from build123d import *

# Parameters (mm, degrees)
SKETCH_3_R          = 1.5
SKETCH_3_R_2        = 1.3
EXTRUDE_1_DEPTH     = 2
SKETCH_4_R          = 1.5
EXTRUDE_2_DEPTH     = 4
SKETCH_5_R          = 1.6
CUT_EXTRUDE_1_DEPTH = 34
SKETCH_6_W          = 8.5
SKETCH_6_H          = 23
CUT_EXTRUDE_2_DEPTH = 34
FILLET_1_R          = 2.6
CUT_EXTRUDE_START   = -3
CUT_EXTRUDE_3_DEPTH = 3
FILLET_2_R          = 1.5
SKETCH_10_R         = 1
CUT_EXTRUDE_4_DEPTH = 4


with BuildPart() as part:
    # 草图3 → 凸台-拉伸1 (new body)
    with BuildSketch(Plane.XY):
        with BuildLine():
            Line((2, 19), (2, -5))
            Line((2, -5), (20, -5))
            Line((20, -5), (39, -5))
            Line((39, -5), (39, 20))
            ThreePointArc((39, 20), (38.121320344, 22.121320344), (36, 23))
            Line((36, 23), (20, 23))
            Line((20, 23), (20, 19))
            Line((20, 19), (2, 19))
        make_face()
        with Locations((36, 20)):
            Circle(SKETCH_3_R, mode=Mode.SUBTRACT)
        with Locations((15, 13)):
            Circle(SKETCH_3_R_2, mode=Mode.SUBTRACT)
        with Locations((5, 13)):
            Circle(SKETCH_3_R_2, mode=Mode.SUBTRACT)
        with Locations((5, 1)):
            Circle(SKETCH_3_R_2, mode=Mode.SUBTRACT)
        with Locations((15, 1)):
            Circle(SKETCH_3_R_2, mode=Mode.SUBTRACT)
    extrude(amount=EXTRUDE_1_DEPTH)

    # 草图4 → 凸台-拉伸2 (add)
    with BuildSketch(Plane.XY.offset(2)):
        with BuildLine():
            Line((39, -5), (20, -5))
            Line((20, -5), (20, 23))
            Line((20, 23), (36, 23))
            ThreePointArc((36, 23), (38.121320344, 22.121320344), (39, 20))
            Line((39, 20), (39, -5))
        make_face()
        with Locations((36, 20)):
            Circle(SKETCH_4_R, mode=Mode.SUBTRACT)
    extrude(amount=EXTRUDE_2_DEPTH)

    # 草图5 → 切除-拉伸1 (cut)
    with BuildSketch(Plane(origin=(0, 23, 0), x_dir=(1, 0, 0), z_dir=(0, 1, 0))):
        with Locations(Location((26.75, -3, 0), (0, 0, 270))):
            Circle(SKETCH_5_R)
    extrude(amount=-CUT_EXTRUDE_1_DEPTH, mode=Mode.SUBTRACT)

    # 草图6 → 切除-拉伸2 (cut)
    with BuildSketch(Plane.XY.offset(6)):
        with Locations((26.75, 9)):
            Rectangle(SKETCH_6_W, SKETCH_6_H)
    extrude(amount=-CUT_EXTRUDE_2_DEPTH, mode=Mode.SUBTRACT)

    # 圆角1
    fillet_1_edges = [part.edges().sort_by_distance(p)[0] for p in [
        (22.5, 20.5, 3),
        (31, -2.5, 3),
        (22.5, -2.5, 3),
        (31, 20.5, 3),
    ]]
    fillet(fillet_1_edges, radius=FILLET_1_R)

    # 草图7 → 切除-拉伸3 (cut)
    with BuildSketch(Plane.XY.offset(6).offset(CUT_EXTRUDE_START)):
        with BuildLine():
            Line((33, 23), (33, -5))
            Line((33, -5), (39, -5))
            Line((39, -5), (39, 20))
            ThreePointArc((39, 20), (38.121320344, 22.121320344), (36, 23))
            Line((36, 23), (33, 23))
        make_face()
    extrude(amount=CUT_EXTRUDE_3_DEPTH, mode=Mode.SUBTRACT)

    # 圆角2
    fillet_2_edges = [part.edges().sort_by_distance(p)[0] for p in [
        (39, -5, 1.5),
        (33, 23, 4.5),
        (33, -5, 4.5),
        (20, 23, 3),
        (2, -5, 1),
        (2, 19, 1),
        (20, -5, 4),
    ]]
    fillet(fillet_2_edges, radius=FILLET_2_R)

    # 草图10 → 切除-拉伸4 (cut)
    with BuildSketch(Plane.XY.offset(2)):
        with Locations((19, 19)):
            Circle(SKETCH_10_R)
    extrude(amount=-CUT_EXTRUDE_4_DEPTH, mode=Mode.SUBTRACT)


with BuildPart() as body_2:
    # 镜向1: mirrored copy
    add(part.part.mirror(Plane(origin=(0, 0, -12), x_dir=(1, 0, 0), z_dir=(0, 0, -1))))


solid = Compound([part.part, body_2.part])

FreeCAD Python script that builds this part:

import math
import FreeCAD as App
import Part
import Sketcher

V = App.Vector


def edges_at(feature, points):
    """Names of the edges that pass closest to the given points."""
    edges = feature.Shape.Edges
    near = lambda p: min(range(len(edges)), key=lambda i: edges[i].distToShape(Part.Vertex(*p))[0])
    return sorted({f"Edge{near(p) + 1}" for p in points})


def add_polygon(sketch, points):
    """Adds a closed chain of lines whose ends are joined by coincident constraints."""
    first, n = sketch.GeometryCount, len(points)
    for a, b in zip(points, points[1:] + points[:1]):
        sketch.addGeometry(Part.LineSegment(App.Vector(*a, 0), App.Vector(*b, 0)), False)
    for i in range(n):
        sketch.addConstraint(Sketcher.Constraint("Coincident", first + i, 2, first + (i + 1) % n, 1))

doc = App.newDocument("Part")
body = doc.addObject("PartDesign::Body", "Body")

# Sketch on XY plane
sketch1 = body.newObject("Sketcher::SketchObject", "Sketch")
sketch1.AttachmentSupport = (doc.getObject("XY_Plane"), [""])
sketch1.MapMode = "FlatFace"
sketch1.addGeometry([
    Part.LineSegment(V(2, 19, 0), V(2, -5, 0)),  # 0
    Part.LineSegment(V(2, -5, 0), V(39, -5, 0)),  # 1
    Part.LineSegment(V(39, -5, 0), V(39, 20, 0)),  # 2
    Part.ArcOfCircle(Part.Circle(V(36, 20, 0), V(0, 0, 1), 3), math.radians(0), math.radians(90)),  # 3
    Part.LineSegment(V(36, 23, 0), V(20, 23, 0)),  # 4
    Part.LineSegment(V(20, 23, 0), V(20, 19, 0)),  # 5
    Part.LineSegment(V(20, 19, 0), V(2, 19, 0)),  # 6
    Part.Circle(V(5, 1, 0), V(0, 0, 1), 1.3),  # 7
    Part.Circle(V(15, 1, 0), V(0, 0, 1), 1.3),  # 8
    Part.Circle(V(5, 13, 0), V(0, 0, 1), 1.3),  # 9
    Part.Circle(V(15, 13, 0), V(0, 0, 1), 1.3),  # 10
    Part.Circle(V(36, 20, 0), V(0, 0, 1), 1.5),  # 11
], False)
sketch1.addConstraint([
    Sketcher.Constraint("Coincident", 0, 2, 1, 1),
    Sketcher.Constraint("Coincident", 1, 2, 2, 1),
    Sketcher.Constraint("Tangent", 2, 2, 3, 1),
    Sketcher.Constraint("Tangent", 3, 2, 4, 1),
    Sketcher.Constraint("Coincident", 4, 2, 5, 1),
    Sketcher.Constraint("Coincident", 5, 2, 6, 1),
    Sketcher.Constraint("Coincident", 6, 2, 0, 1),
    Sketcher.Constraint("Vertical", 0),
    Sketcher.Constraint("Horizontal", 1),
    Sketcher.Constraint("Vertical", 2),
    Sketcher.Constraint("Horizontal", 4),
    Sketcher.Constraint("Vertical", 5),
    Sketcher.Constraint("Horizontal", 6),
    Sketcher.Constraint("Coincident", 11, 3, 3, 3),
    Sketcher.Constraint("Equal", 7, 8),
    Sketcher.Constraint("Equal", 8, 9),
    Sketcher.Constraint("Equal", 9, 10),
    Sketcher.Constraint("Horizontal", 7, 3, 8, 3),
    Sketcher.Constraint("Horizontal", 9, 3, 10, 3),
    Sketcher.Constraint("Vertical", 7, 3, 9, 3),
    Sketcher.Constraint("Vertical", 8, 3, 10, 3),
    Sketcher.Constraint("Diameter", 11, 3.0),
    Sketcher.Constraint("Radius", 3, 3.0),
    Sketcher.Constraint("Diameter", 7, 2.6),
    Sketcher.Constraint("DistanceX", 1, 1, 1, 2, 37.0),
    Sketcher.Constraint("DistanceX", 4, 2, 4, 1, 16.0),
    Sketcher.Constraint("DistanceY", 0, 2, 0, 1, 24.0),
    Sketcher.Constraint("DistanceY", 2, 1, 2, 2, 25.0),
    Sketcher.Constraint("DistanceX", -1, 1, 3, 3, 36.0),
    Sketcher.Constraint("DistanceY", -1, 1, 3, 3, 20.0),
    Sketcher.Constraint("DistanceX", -1, 1, 7, 3, 5.0),
    Sketcher.Constraint("DistanceY", -1, 1, 7, 3, 1.0),
    Sketcher.Constraint("DistanceX", -1, 1, 8, 3, 15.0),
    Sketcher.Constraint("DistanceY", -1, 1, 9, 3, 13.0),
])
pad1 = body.newObject("PartDesign::Pad", "Pad")
pad1.Profile = sketch1
pad1.Length = 2

# Sketch on XY plane
sketch2 = body.newObject("Sketcher::SketchObject", "Sketch001")
sketch2.AttachmentSupport = (doc.getObject("XY_Plane"), [""])
sketch2.MapMode = "FlatFace"
sketch2.AttachmentOffset = App.Placement(V(0, 0, 2), App.Rotation())
sketch2.addGeometry([
    Part.LineSegment(V(20, -5, 0), V(39, -5, 0)),  # 0
    Part.LineSegment(V(39, -5, 0), V(39, 20, 0)),  # 1
    Part.ArcOfCircle(Part.Circle(V(36, 20, 0), V(0, 0, 1), 3), math.radians(0), math.radians(90)),  # 2
    Part.LineSegment(V(36, 23, 0), V(20, 23, 0)),  # 3
    Part.LineSegment(V(20, 23, 0), V(20, -5, 0)),  # 4
    Part.Circle(V(36, 20, 0), V(0, 0, 1), 1.5),  # 5
], False)
sketch2.addConstraint([
    Sketcher.Constraint("Coincident", 0, 2, 1, 1),
    Sketcher.Constraint("Tangent", 1, 2, 2, 1),
    Sketcher.Constraint("Tangent", 2, 2, 3, 1),
    Sketcher.Constraint("Coincident", 3, 2, 4, 1),
    Sketcher.Constraint("Coincident", 4, 2, 0, 1),
    Sketcher.Constraint("Horizontal", 0),
    Sketcher.Constraint("Vertical", 1),
    Sketcher.Constraint("Horizontal", 3),
    Sketcher.Constraint("Vertical", 4),
    Sketcher.Constraint("Coincident", 5, 3, 2, 3),
    Sketcher.Constraint("Diameter", 5, 3.0),
    Sketcher.Constraint("Radius", 2, 3.0),
    Sketcher.Constraint("DistanceX", 0, 1, 0, 2, 19.0),
    Sketcher.Constraint("DistanceY", 1, 1, 1, 2, 25.0),
    Sketcher.Constraint("DistanceX", -1, 1, 2, 3, 36.0),
    Sketcher.Constraint("DistanceY", -1, 1, 2, 3, 20.0),
])
pad2 = body.newObject("PartDesign::Pad", "Pad001")
pad2.Profile = sketch2
pad2.Length = 4

# Sketch on XZ plane
sketch3 = body.newObject("Sketcher::SketchObject", "Sketch002")
sketch3.AttachmentSupport = (doc.getObject("XZ_Plane"), [""])
sketch3.MapMode = "FlatFace"
sketch3.AttachmentOffset = App.Placement(V(0, 0, -23), App.Rotation())
sketch3.addGeometry(Part.Circle(V(26.75, 3, 0), V(0, 0, 1), 1.6), False)
sketch3.addConstraint([
    Sketcher.Constraint("Diameter", 0, 3.2),
    Sketcher.Constraint("DistanceY", -1, 1, 0, 3, 3.0),
    Sketcher.Constraint("DistanceX", -1, 1, 0, 3, 26.75),
])
pocket1 = body.newObject("PartDesign::Pocket", "Pocket")
pocket1.Profile = sketch3
pocket1.Length = 34
pocket1.Reversed = True

# Sketch on XY plane
sketch4 = body.newObject("Sketcher::SketchObject", "Sketch003")
sketch4.AttachmentSupport = (doc.getObject("XY_Plane"), [""])
sketch4.MapMode = "FlatFace"
sketch4.AttachmentOffset = App.Placement(V(0, 0, 6), App.Rotation())
add_polygon(sketch4, [(22.5, 20.5), (22.5, -2.5), (31, -2.5), (31, 20.5)])  # lines 0-3
sketch4.addConstraint([
    Sketcher.Constraint("Vertical", 0),
    Sketcher.Constraint("Horizontal", 1),
    Sketcher.Constraint("Vertical", 2),
    Sketcher.Constraint("Horizontal", 3),
    Sketcher.Constraint("DistanceY", 0, 2, 0, 1, 23.0),
    Sketcher.Constraint("DistanceX", 1, 1, 1, 2, 8.5),
    Sketcher.Constraint("DistanceX", -1, 1, 1, 2, 31.0),
    Sketcher.Constraint("DistanceY", 0, 2, -1, 1, 2.5),
])
pocket2 = body.newObject("PartDesign::Pocket", "Pocket001")
pocket2.Profile = sketch4
pocket2.Length = 34
doc.recompute()

fillet = body.newObject("PartDesign::Fillet", "Fillet")
fillet.Base = (pocket2, edges_at(pocket2, [
    (22.5, 20.5, 3),
    (31, -2.5, 3),
    (22.5, -2.5, 3),
    (31, 20.5, 3),
]))
fillet.Radius = 2.6

# Sketch on XY plane
sketch5 = body.newObject("Sketcher::SketchObject", "Sketch004")
sketch5.AttachmentSupport = (doc.getObject("XY_Plane"), [""])
sketch5.MapMode = "FlatFace"
sketch5.AttachmentOffset = App.Placement(V(0, 0, 3), App.Rotation())
sketch5.addGeometry([
    Part.LineSegment(V(33, 23, 0), V(33, -5, 0)),  # 0
    Part.LineSegment(V(33, -5, 0), V(39, -5, 0)),  # 1
    Part.LineSegment(V(39, -5, 0), V(39, 20, 0)),  # 2
    Part.ArcOfCircle(Part.Circle(V(36, 20, 0), V(0, 0, 1), 3), math.radians(0), math.radians(90)),  # 3
    Part.LineSegment(V(36, 23, 0), V(33, 23, 0)),  # 4
], False)
sketch5.addConstraint([
    Sketcher.Constraint("Coincident", 0, 2, 1, 1),
    Sketcher.Constraint("Coincident", 1, 2, 2, 1),
    Sketcher.Constraint("Tangent", 2, 2, 3, 1),
    Sketcher.Constraint("Tangent", 3, 2, 4, 1),
    Sketcher.Constraint("Coincident", 4, 2, 0, 1),
    Sketcher.Constraint("Vertical", 0),
    Sketcher.Constraint("Horizontal", 1),
    Sketcher.Constraint("Vertical", 2),
    Sketcher.Constraint("Horizontal", 4),
    Sketcher.Constraint("Radius", 3, 3.0),
    Sketcher.Constraint("DistanceX", 1, 1, 1, 2, 6.0),
    Sketcher.Constraint("DistanceY", 0, 2, 0, 1, 28.0),
    Sketcher.Constraint("DistanceX", -1, 1, 3, 3, 36.0),
    Sketcher.Constraint("DistanceY", -1, 1, 3, 3, 20.0),
])
pocket3 = body.newObject("PartDesign::Pocket", "Pocket002")
pocket3.Profile = sketch5
pocket3.Length = 3
pocket3.Reversed = True
doc.recompute()

fillet2 = body.newObject("PartDesign::Fillet", "Fillet001")
fillet2.Base = (pocket3, edges_at(pocket3, [
    (39, -5, 1.5),
    (33, 23, 4.5),
    (33, -5, 4.5),
    (20, 23, 3),
    (2, -5, 1),
    (2, 19, 1),
    (20, -5, 4),
]))
fillet2.Radius = 1.5

# Sketch on XY plane
sketch6 = body.newObject("Sketcher::SketchObject", "Sketch005")
sketch6.AttachmentSupport = (doc.getObject("XY_Plane"), [""])
sketch6.MapMode = "FlatFace"
sketch6.AttachmentOffset = App.Placement(V(0, 0, 2), App.Rotation())
sketch6.addGeometry(Part.Circle(V(19, 19, 0), V(0, 0, 1), 1), False)
sketch6.addConstraint([
    Sketcher.Constraint("Diameter", 0, 2.0),
    Sketcher.Constraint("DistanceX", -1, 1, 0, 3, 19.0),
    Sketcher.Constraint("DistanceY", -1, 1, 0, 3, 19.0),
])
pocket4 = body.newObject("PartDesign::Pocket", "Pocket003")
pocket4.Profile = sketch6
pocket4.Length = 4
body2 = doc.addObject("PartDesign::Body", "Body001")
doc.recompute()

mirroring = doc.addObject("Part::Mirroring", "Mirroring")
mirroring.Source = body
mirroring.Base = V(0, 0, -12)
mirroring.Normal = V(0, 0, -1)
body2.BaseFeature = mirroring
doc.recompute()
mirroring.Visibility = False

doc.recompute()
